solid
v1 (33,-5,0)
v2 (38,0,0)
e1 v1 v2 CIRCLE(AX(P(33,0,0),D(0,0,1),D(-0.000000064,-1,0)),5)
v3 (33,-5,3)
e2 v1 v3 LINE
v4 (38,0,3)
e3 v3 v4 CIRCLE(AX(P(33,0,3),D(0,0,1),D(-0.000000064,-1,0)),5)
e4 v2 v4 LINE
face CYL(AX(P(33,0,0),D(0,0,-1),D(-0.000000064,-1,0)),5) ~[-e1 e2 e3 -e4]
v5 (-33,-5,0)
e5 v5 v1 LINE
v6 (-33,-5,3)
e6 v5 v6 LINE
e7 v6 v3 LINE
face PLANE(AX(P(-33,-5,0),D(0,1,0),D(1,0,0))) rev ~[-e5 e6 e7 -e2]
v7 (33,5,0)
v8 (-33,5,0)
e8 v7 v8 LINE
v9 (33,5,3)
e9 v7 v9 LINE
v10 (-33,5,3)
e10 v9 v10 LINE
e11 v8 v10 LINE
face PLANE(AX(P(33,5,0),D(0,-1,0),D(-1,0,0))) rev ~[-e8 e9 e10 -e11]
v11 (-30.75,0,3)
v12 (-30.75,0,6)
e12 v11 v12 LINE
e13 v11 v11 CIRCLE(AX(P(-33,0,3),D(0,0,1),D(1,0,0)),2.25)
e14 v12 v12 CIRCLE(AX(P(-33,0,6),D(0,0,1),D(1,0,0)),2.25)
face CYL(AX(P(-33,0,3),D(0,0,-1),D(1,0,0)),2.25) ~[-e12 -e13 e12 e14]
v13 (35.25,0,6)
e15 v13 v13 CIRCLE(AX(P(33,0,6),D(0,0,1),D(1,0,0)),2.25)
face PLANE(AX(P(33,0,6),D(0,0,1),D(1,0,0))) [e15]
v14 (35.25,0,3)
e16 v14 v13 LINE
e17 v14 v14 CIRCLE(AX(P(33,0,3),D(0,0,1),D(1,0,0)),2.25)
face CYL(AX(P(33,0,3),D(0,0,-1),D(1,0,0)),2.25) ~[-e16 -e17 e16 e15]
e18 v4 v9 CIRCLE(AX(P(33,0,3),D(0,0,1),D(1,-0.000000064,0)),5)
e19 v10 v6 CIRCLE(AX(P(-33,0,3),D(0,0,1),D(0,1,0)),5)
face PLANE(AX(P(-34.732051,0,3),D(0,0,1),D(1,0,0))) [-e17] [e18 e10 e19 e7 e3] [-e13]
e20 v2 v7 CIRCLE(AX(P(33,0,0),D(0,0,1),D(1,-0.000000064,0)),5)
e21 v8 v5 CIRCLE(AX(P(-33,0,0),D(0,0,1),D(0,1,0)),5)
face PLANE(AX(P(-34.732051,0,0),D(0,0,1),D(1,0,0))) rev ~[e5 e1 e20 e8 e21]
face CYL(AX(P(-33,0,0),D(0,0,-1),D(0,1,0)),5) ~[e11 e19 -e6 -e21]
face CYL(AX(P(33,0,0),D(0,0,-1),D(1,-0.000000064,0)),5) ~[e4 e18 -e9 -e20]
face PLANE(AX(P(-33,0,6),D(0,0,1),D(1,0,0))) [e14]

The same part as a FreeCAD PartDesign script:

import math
import FreeCAD as App
import Part
import Sketcher

V = App.Vector
Q = App.Units.Quantity

doc = App.newDocument("Part")
body = doc.addObject("PartDesign::Body", "Body")

sketch1 = body.newObject("Sketcher::SketchObject", "Sketch")
sketch1.AttachmentSupport = (doc.getObject("XY_Plane"), [""])
sketch1.MapMode = "FlatFace"
sketch1.addGeometry([
    Part.ArcOfCircle(Part.Circle(V(-33, 0, 0), V(0, 0, 1), 5), math.radians(90), math.radians(270)),
    Part.LineSegment(V(-33, -5, 0), V(33, -5, 0)),
    Part.ArcOfCircle(Part.Circle(V(33, 0, 0), V(0, 0, 1), 5), math.radians(-90), math.radians(0)),
    Part.ArcOfCircle(Part.Circle(V(33, 0, 0), V(0, 0, 1), 5), math.radians(0), math.radians(90)),
    Part.LineSegment(V(33, 5, 0), V(-33, 5, 0)),
], False)
sketch1.addConstraint([
    Sketcher.Constraint("Tangent", 0, 2, 1, 1),
    Sketcher.Constraint("Tangent", 1, 2, 2, 1),
    Sketcher.Constraint("Tangent", 2, 2, 3, 1),
    Sketcher.Constraint("Tangent", 3, 2, 4, 1),
    Sketcher.Constraint("Tangent", 4, 2, 0, 1),
    Sketcher.Constraint("Horizontal", 1),
    Sketcher.Constraint("Horizontal", 4),
    Sketcher.Constraint("Equal", 0, 2),
    Sketcher.Constraint("Symmetric", 0, 3, 2, 3, -1, 1),
    Sketcher.Constraint("PointOnObject", 2, 2, -1),
    Sketcher.Constraint("Radius", 0, Q("5 mm")),
    Sketcher.Constraint("DistanceX", 1, 1, 1, 2, Q("66 mm")),
])
pad1 = body.newObject("PartDesign::Pad", "Pad")
pad1.Profile = sketch1
pad1.Length = 3

sketch2 = body.newObject("Sketcher::SketchObject", "Sketch001")
sketch2.AttachmentSupport = (doc.getObject("XY_Plane"), [""])
sketch2.MapMode = "FlatFace"
sketch2.AttachmentOffset = App.Placement(V(0, 0, 3), App.Rotation())
sketch2.addGeometry([
    Part.Circle(V(-33, 0, 0), V(0, 0, 1), 2.2),
    Part.Circle(V(33, 0, 0), V(0, 0, 1), 2.2),
], False)
sketch2.addConstraint([
    Sketcher.Constraint("Equal", 0, 1),
    Sketcher.Constraint("Symmetric", 0, 3, 1, 3, -1, 1),
    Sketcher.Constraint("PointOnObject", 0, 3, -1),
    Sketcher.Constraint("Diameter", 0, Q("4.5 mm")),
    Sketcher.Constraint("DistanceX", 0, 3, -1, 1, Q("33 mm")),
])
pad2 = body.newObject("PartDesign::Pad", "Pad001")
pad2.Profile = sketch2
pad2.Length = 3

doc.recompute()
